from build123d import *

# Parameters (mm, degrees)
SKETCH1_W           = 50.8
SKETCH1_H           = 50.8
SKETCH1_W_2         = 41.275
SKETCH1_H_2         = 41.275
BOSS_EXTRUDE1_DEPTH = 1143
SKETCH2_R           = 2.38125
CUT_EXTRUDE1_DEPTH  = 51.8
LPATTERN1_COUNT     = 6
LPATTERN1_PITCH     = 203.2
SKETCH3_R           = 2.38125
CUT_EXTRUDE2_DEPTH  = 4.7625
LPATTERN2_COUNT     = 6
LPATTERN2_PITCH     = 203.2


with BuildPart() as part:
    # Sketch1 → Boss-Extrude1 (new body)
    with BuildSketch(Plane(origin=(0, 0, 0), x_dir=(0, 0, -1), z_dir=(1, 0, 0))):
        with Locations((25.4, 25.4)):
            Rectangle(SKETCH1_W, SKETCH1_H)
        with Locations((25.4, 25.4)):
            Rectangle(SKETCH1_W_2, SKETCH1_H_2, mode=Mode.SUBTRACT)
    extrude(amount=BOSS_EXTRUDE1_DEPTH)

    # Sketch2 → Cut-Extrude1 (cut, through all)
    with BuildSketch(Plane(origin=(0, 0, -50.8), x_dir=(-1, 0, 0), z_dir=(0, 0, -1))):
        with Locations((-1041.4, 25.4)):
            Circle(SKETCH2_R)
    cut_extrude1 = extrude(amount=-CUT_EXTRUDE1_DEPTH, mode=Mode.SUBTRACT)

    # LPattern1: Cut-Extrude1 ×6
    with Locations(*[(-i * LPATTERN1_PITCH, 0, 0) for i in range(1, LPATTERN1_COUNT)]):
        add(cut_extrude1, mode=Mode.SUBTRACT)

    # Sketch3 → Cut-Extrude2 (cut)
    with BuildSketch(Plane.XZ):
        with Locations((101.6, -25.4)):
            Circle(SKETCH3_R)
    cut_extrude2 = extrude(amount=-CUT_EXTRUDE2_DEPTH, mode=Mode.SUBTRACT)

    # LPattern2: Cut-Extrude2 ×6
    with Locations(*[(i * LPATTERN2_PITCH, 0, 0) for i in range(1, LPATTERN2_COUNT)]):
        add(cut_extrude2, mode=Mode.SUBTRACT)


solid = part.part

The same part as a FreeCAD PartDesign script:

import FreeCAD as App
import Part
import Sketcher

V = App.Vector
Q = App.Units.Quantity


def add_polygon(sketch, points):
    """Adds a closed chain of lines whose ends are joined by coincident constraints."""
    first, n = sketch.GeometryCount, len(points)
    for a, b in zip(points, points[1:] + points[:1]):
        sketch.addGeometry(Part.LineSegment(App.Vector(*a, 0), App.Vector(*b, 0)), False)
    for i in range(n):
        sketch.addConstraint(Sketcher.Constraint("Coincident", first + i, 2, first + (i + 1) % n, 1))

doc = App.newDocument("Part")
body = doc.addObject("PartDesign::Body", "Body")

# Sketch on YZ plane
sketch1 = body.newObject("Sketcher::SketchObject", "Sketch")
sketch1.AttachmentSupport = (doc.getObject("YZ_Plane"), [""])
sketch1.MapMode = "FlatFace"
add_polygon(sketch1, [(51, 0), (0, 0), (0, -51), (51, -51)])  # lines 0-3
add_polygon(sketch1, [(5, -46), (5, -5), (46, -5), (46, -46)])  # lines 4-7
sketch1.addConstraint(Sketcher.Constraint("Horizontal", 0))
sketch1.addConstraint(Sketcher.Constraint("Vertical", 1))
sketch1.addConstraint(Sketcher.Constraint("Horizontal", 2))
sketch1.addConstraint(Sketcher.Constraint("Vertical", 3))
sketch1.addConstraint(Sketcher.Constraint("Vertical", 4))
sketch1.addConstraint(Sketcher.Constraint("Horizontal", 5))
sketch1.addConstraint(Sketcher.Constraint("Vertical", 6))
sketch1.addConstraint(Sketcher.Constraint("Horizontal", 7))
sketch1.addConstraint(Sketcher.Constraint("Coincident", 0, 2, -1, 1))
sketch1.addConstraint(Sketcher.Constraint("Equal", 2, 1))
sketch1.addConstraint(Sketcher.Constraint("Equal", 7, 4))
sketch1.addConstraint(Sketcher.Constraint("DistanceX", 0, 2, 0, 1, Q("2 in")))
sketch1.addConstraint(Sketcher.Constraint("DistanceX", 5, 1, 5, 2, Q("1.625 in")))
sketch1.addConstraint(Sketcher.Constraint("DistanceX", -1, 1, 4, 2, Q("0.1875 in")))
sketch1.addConstraint(Sketcher.Constraint("DistanceY", 4, 2, -1, 1, Q("0.1875 in")))
pad1 = body.newObject("PartDesign::Pad", "Pad")
pad1.Profile = sketch1
pad1.Length = Q("45 in")

# Sketch on XY plane
sketch2 = body.newObject("Sketcher::SketchObject", "Sketch001")
sketch2.AttachmentSupport = (doc.getObject("XY_Plane"), [""])
sketch2.MapMode = "FlatFace"
sketch2.AttachmentOffset = App.Placement(V(0, 0, -2 * 25.4), App.Rotation())
sketch2.addGeometry(Part.Circle(V(1041.4, 25.4, 0), V(0, 0, 1), 2.4), False)
sketch2.addConstraint(Sketcher.Constraint("Diameter", 0, Q("0.1875 in")))
sketch2.addConstraint(Sketcher.Constraint("DistanceX", -1, 1, 0, 3, Q("41 in")))
sketch2.addConstraint(Sketcher.Constraint("DistanceY", -1, 1, 0, 3, Q("1 in")))
pocket1 = body.newObject("PartDesign::Pocket", "Pocket")
pocket1.Profile = sketch2
pocket1.Type = "ThroughAll"
pocket1.Reversed = True
doc.recompute()

linearpattern = body.newObject("PartDesign::LinearPattern", "LinearPattern")
linearpattern.Originals = [pocket1]
linearpattern.Direction = (doc.getObject("X_Axis"), [""])
linearpattern.Mode = "offset"
linearpattern.Offset = Q("8 in")
linearpattern.Occurrences = 6
linearpattern.Reversed = True
body.Tip = linearpattern

# Sketch on XZ plane
sketch3 = body.newObject("Sketcher::SketchObject", "Sketch002")
sketch3.AttachmentSupport = (doc.getObject("XZ_Plane"), [""])
sketch3.MapMode = "FlatFace"
sketch3.addGeometry(Part.Circle(V(101.6, -25.4, 0), V(0, 0, 1), 2.4), False)
sketch3.addConstraint(Sketcher.Constraint("Diameter", 0, Q("0.1875 in")))
sketch3.addConstraint(Sketcher.Constraint("DistanceX", -1, 1, 0, 3, Q("4 in")))
sketch3.addConstraint(Sketcher.Constraint("DistanceY", 0, 3, -1, 1, Q("1 in")))
pocket2 = body.newObject("PartDesign::Pocket", "Pocket001")
pocket2.Profile = sketch3
pocket2.Length = Q("0.1875 in")
doc.recompute()

linearpattern2 = body.newObject("PartDesign::LinearPattern", "LinearPattern001")
linearpattern2.Originals = [pocket2]
linearpattern2.Direction = (doc.getObject("X_Axis"), [""])
linearpattern2.Mode = "offset"
linearpattern2.Offset = Q("8 in")
linearpattern2.Occurrences = 6
body.Tip = linearpattern2

doc.recompute()
